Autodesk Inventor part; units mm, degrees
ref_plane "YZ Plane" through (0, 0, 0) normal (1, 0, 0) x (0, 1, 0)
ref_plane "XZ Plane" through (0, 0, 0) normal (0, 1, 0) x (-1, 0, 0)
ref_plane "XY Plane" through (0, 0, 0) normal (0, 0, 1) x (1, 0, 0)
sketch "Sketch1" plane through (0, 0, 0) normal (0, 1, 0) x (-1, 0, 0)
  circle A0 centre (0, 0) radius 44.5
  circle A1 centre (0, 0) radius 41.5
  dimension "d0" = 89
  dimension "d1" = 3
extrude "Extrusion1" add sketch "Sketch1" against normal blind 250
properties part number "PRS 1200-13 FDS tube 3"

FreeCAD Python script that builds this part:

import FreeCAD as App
import Part
import Sketcher

doc = App.newDocument("Part")
body = doc.addObject("PartDesign::Body", "Body")

sketch1 = body.newObject("Sketcher::SketchObject", "Sketch")
sketch1.AttachmentSupport = (doc.getObject("XZ_Plane"), [""])
sketch1.MapMode = "FlatFace"
sketch1.addGeometry([
    Part.Circle(App.Vector(0, 0, 0), App.Vector(0, 0, 1), 44),
    Part.Circle(App.Vector(0, 0, 0), App.Vector(0, 0, 1), 42),
], False)
sketch1.addConstraint([
    Sketcher.Constraint("Coincident", 0, 3, -1, 1),
    Sketcher.Constraint("Coincident", 1, 3, -1, 1),
    Sketcher.Constraint("Diameter", 0, 89.0),
    Sketcher.Constraint("Diameter", 1, 83.0),
])
pad1 = body.newObject("PartDesign::Pad", "Pad")
pad1.Profile = sketch1
pad1.Length = 250

doc.recompute()
